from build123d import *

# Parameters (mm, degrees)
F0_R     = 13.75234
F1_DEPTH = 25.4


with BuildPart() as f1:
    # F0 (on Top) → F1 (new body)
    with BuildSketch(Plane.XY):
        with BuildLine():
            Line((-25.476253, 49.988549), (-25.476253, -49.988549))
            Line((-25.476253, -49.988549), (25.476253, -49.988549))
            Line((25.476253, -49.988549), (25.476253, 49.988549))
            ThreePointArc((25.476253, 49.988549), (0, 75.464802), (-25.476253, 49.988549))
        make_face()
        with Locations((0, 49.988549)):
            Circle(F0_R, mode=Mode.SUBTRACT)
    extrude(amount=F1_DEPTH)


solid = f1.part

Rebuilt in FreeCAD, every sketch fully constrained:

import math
import FreeCAD as App
import Part
import Sketcher

V = App.Vector
Q = App.Units.Quantity

doc = App.newDocument("Part")
body = doc.addObject("PartDesign::Body", "Body")

sketch1 = doc.addObject("Sketcher::SketchObject", "Sketch")
body.addObject(sketch1)
sketch1.AttachmentSupport = (doc.XY_Plane, [""])
sketch1.MapMode = "FlatFace"
sketch1.addGeometry([
    Part.LineSegment(V(-25.476253, 49.988549, 0), V(-25.476253, -49.988549, 0)),
    Part.LineSegment(V(-25.476253, -49.988549, 0), V(25.476253, -49.988549, 0)),
    Part.LineSegment(V(25.476253, -49.988549, 0), V(25.476253, 49.988549, 0)),
    Part.ArcOfCircle(Part.Circle(V(0, 49.988549, 0), V(0, 0, 1), 25.476253), math.radians(0), math.radians(180)),
    Part.Circle(V(0, 49.988549, 0), V(0, 0, 1), 13.75234),
], False)
sketch1.addConstraint([
    Sketcher.Constraint("Coincident", 0, 2, 1, 1),
    Sketcher.Constraint("Coincident", 1, 2, 2, 1),
    Sketcher.Constraint("Tangent", 2, 2, 3, 1),
    Sketcher.Constraint("Tangent", 3, 2, 0, 1),
    Sketcher.Constraint("Vertical", 0),
    Sketcher.Constraint("Horizontal", 1),
    Sketcher.Constraint("Vertical", 2),
    Sketcher.Constraint("Coincident", 4, 3, 3, 3),
    Sketcher.Constraint("Symmetric", 0, 2, 2, 2, -1, 1),
    Sketcher.Constraint("Diameter", 4, 27.50468),
    Sketcher.Constraint("DistanceY", 0, 2, 0, 1, 99.977098),
    Sketcher.Constraint("Radius", 3, 25.476253),
])
pad1 = doc.addObject("PartDesign::Pad", "Pad")
body.addObject(pad1)
pad1.Profile = sketch1
pad1.Length = Q("1 in")

doc.recompute()
